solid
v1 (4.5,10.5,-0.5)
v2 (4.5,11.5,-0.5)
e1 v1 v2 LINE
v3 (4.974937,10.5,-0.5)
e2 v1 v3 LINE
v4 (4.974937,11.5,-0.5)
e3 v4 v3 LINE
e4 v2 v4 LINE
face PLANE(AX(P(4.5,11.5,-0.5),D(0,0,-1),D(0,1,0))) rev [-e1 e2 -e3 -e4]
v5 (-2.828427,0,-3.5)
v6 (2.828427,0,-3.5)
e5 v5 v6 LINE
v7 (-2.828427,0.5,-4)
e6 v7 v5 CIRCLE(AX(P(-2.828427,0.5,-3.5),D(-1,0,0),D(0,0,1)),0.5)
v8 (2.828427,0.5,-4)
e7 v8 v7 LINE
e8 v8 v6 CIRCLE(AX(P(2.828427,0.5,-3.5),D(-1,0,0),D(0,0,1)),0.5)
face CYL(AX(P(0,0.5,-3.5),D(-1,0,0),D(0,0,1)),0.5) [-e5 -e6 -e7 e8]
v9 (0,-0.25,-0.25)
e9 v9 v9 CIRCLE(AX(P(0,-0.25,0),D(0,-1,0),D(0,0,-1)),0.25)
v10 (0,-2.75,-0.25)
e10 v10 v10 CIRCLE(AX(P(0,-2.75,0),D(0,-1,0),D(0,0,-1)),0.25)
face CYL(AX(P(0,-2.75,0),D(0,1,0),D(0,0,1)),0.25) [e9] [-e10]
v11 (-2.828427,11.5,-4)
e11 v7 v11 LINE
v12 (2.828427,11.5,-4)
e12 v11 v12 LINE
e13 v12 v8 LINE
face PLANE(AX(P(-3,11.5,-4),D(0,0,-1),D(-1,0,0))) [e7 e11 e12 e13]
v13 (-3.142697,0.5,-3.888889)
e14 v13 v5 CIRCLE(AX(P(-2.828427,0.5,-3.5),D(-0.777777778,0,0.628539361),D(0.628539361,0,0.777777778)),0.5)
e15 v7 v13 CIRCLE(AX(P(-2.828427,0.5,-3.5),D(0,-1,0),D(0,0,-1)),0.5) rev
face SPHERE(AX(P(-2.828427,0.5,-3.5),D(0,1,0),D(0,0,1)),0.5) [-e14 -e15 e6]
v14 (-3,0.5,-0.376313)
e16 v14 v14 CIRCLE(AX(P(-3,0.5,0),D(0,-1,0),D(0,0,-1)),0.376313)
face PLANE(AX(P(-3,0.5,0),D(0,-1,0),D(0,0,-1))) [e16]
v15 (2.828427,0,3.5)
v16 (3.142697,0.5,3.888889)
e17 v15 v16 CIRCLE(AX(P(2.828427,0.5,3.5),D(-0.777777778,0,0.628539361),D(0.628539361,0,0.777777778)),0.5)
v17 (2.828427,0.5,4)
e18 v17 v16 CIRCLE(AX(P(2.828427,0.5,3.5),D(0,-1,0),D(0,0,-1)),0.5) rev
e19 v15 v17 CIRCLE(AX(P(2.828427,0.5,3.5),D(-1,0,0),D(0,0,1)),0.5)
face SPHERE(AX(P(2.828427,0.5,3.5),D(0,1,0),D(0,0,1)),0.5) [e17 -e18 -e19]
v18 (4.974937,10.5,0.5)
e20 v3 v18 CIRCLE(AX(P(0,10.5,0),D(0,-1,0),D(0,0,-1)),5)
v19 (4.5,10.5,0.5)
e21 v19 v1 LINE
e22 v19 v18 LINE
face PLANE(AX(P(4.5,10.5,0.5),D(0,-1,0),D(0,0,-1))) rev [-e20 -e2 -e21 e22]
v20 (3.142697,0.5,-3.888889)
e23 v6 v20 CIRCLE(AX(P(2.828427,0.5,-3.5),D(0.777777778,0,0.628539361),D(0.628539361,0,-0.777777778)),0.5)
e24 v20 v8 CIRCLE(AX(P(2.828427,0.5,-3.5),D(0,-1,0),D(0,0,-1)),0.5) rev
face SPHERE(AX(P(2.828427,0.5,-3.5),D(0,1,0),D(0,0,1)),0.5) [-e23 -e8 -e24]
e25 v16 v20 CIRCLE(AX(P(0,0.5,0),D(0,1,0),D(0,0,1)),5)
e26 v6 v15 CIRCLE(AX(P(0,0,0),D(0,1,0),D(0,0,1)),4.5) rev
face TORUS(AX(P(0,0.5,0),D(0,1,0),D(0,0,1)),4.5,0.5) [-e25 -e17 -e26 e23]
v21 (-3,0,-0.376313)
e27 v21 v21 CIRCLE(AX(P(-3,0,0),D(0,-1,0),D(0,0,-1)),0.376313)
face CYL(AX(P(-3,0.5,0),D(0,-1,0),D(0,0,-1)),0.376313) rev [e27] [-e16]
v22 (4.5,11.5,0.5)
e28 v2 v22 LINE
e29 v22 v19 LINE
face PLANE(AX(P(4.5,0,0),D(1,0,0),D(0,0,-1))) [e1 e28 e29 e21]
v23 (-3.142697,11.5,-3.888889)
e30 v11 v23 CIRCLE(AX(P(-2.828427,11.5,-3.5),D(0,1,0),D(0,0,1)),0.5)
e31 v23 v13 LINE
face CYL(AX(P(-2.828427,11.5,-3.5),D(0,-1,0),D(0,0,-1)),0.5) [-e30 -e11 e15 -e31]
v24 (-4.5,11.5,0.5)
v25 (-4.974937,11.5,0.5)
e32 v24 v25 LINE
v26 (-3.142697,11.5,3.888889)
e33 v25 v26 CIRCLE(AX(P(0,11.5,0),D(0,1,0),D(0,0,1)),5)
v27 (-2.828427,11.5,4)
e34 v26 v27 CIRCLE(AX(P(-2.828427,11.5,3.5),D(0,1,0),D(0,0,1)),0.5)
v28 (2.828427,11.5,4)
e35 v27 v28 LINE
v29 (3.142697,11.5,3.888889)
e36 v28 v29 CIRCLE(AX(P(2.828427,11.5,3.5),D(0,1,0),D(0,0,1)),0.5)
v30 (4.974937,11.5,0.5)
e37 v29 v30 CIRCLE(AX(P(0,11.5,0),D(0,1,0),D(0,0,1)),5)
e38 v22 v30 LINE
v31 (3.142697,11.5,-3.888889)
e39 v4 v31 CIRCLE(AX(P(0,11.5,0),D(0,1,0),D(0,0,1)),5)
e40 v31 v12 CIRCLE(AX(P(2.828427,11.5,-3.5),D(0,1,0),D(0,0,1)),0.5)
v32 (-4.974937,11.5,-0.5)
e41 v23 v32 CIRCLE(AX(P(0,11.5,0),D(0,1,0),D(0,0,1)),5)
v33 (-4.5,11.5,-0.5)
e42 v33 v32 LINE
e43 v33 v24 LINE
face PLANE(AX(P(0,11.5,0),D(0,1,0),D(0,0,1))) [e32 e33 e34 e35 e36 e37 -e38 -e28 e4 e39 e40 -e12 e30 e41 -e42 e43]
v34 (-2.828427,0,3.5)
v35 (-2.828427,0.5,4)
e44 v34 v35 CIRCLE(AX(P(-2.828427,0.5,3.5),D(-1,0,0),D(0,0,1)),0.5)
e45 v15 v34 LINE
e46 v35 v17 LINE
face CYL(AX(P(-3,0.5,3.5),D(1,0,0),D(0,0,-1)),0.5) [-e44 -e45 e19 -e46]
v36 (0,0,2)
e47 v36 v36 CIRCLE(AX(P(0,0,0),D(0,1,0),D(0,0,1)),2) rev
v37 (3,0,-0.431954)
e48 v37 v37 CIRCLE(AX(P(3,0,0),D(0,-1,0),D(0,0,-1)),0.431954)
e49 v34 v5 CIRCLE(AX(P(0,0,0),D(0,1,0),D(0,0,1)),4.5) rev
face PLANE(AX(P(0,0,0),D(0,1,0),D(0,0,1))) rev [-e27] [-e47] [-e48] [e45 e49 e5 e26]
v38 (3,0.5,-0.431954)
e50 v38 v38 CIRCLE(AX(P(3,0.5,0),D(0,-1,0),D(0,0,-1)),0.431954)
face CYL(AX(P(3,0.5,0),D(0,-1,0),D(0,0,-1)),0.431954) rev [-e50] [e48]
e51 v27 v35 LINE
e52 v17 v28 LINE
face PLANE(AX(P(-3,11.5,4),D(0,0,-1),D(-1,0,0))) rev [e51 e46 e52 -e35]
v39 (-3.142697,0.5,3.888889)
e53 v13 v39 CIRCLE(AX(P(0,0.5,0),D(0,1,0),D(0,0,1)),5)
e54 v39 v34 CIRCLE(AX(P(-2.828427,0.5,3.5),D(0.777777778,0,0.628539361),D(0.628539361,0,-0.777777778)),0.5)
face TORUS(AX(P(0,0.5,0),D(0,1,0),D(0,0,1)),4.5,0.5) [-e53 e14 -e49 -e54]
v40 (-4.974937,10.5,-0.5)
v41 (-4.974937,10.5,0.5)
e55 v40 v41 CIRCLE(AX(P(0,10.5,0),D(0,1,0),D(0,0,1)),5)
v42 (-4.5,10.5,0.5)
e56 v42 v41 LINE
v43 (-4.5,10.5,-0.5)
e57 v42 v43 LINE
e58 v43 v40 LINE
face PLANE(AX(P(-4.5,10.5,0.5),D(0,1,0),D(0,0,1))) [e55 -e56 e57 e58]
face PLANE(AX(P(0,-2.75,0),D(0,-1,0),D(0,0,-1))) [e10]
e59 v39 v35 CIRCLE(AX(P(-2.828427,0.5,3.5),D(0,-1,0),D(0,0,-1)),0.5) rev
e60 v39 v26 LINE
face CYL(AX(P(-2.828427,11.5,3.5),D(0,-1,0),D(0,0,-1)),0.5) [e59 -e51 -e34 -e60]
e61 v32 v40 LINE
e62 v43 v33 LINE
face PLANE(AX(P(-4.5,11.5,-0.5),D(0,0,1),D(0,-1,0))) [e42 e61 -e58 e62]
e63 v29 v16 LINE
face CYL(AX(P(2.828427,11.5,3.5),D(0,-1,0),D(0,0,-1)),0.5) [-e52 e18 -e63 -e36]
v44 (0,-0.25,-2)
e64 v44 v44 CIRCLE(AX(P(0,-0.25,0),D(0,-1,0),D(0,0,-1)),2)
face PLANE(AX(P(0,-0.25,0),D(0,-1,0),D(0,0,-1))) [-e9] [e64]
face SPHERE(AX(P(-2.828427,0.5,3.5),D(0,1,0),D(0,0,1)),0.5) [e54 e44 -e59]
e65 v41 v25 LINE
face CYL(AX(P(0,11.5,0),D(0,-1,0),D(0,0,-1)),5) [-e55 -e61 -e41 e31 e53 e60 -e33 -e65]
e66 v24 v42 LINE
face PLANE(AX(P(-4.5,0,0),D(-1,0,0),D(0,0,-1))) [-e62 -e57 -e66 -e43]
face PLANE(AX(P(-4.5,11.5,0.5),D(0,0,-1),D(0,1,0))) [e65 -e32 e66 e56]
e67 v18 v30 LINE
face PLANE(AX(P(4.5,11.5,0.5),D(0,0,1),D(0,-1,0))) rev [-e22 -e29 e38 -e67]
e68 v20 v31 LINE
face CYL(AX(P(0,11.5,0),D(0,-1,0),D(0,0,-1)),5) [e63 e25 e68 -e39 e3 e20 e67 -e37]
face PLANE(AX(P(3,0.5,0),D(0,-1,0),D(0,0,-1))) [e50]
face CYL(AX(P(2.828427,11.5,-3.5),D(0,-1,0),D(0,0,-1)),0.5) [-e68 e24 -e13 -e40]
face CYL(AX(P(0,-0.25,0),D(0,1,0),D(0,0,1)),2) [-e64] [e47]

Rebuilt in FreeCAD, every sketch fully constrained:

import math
import FreeCAD as App
import Part
import Sketcher
from FreeCAD import Vector


def edges_at(feature, points):
    """Names of the edges that pass closest to the given points."""
    edges = feature.Shape.Edges
    near = lambda p: min(range(len(edges)), key=lambda i: edges[i].distToShape(Part.Vertex(*p))[0])
    return sorted({f"Edge{near(p) + 1}" for p in points})


def add_polygon(sketch, points):
    """Adds a closed chain of lines whose ends are joined by coincident constraints."""
    first, n = sketch.GeometryCount, len(points)
    for a, b in zip(points, points[1:] + points[:1]):
        sketch.addGeometry(Part.LineSegment(App.Vector(*a, 0), App.Vector(*b, 0)), False)
    for i in range(n):
        sketch.addConstraint(Sketcher.Constraint("Coincident", first + i, 2, first + (i + 1) % n, 1))

doc = App.newDocument("Part")
body = doc.addObject("PartDesign::Body", "Body")

# Sketch on XZ plane
sketch1 = body.newObject("Sketcher::SketchObject", "Sketch")
sketch1.AttachmentSupport = (doc.getObject("XZ_Plane"), [""])
sketch1.MapMode = "FlatFace"
sketch1.addGeometry([
    Part.LineSegment(Vector(3, -4, 0), Vector(-3, -4, 0)),
    Part.ArcOfCircle(Part.Circle(Vector(0, 0, 0), Vector(0, 0, 1), 5), math.radians(126.869898), math.radians(233.130102)),
    Part.LineSegment(Vector(-3, 4, 0), Vector(3, 4, 0)),
    Part.ArcOfCircle(Part.Circle(Vector(0, 0, 0), Vector(0, 0, 1), 5), math.radians(-53.130102), math.radians(53.130102)),
], False)
sketch1.addConstraint([
    Sketcher.Constraint("Coincident", 0, 2, 1, 2),
    Sketcher.Constraint("Coincident", 1, 1, 2, 1),
    Sketcher.Constraint("Coincident", 2, 2, 3, 2),
    Sketcher.Constraint("Coincident", 3, 1, 0, 1),
    Sketcher.Constraint("Horizontal", 0),
    Sketcher.Constraint("Horizontal", 2),
    Sketcher.Constraint("Coincident", 1, 3, -1, 1),
    Sketcher.Constraint("Coincident", 3, 3, -1, 1),
    Sketcher.Constraint("Equal", 1, 3),
    Sketcher.Constraint("Vertical", 0, 2, 1, 1),
    Sketcher.Constraint("Radius", 1, 5.0),
    Sketcher.Constraint("DistanceX", 0, 2, 0, 1, 6.0),
])
pad1 = body.newObject("PartDesign::Pad", "Pad")
pad1.Profile = sketch1
pad1.Length = 11.5
pad1.Reversed = True

# Sketch on YZ plane
sketch2 = body.newObject("Sketcher::SketchObject", "Sketch001")
sketch2.AttachmentSupport = (doc.getObject("YZ_Plane"), [""])
sketch2.MapMode = "FlatFace"
sketch2.AttachmentOffset = App.Placement(Vector(0, 0, 5), App.Rotation())
add_polygon(sketch2, [(11.5, 0.5), (10.5, 0.5), (10.5, -0.5), (11.5, -0.5)])  # lines 0-3
sketch2.addConstraint([
    Sketcher.Constraint("Horizontal", 0),
    Sketcher.Constraint("Vertical", 1),
    Sketcher.Constraint("Horizontal", 2),
    Sketcher.Constraint("Vertical", 3),
    Sketcher.Constraint("Equal", 2, 1),
    Sketcher.Constraint("DistanceX", 0, 2, 0, 1, 1.0),
    Sketcher.Constraint("DistanceX", -1, 1, 0, 2, 10.5),
    Sketcher.Constraint("DistanceY", -1, 1, 0, 2, 0.5),
])
pocket1 = body.newObject("PartDesign::Pocket", "Pocket")
pocket1.Profile = sketch2
pocket1.Length = 0.5
doc.recompute()

mirrored = body.newObject("PartDesign::Mirrored", "Mirrored")
mirrored.Originals = [pocket1]
mirrored.MirrorPlane = (doc.getObject("YZ_Plane"), [""])
body.Tip = mirrored
doc.recompute()

fillet = body.newObject("PartDesign::Fillet", "Fillet")
fillet.Base = (mirrored, edges_at(mirrored, [
    (-3, 5.75, -4),
    (-3, 5.75, 4),
    (3, 5.75, 4),
    (3, 5.75, -4),
]))
fillet.Radius = 0.5
doc.recompute()

fillet2 = body.newObject("PartDesign::Fillet", "Fillet001")
fillet2.Base = (fillet, edges_at(fillet, [
    (-5, 0, 0),
    (0, 0, -4),
    (5, 0, 0),
    (0, 0, 4),
    (2.995, 0, 3.971),
    (-2.995, 0, 3.971),
    (2.995, 0, -3.971),
    (-2.995, 0, -3.971),
]))
fillet2.Radius = 0.5

# Sketch on XZ plane
sketch3 = body.newObject("Sketcher::SketchObject", "Sketch002")
sketch3.AttachmentSupport = (doc.getObject("XZ_Plane"), [""])
sketch3.MapMode = "FlatFace"
sketch3.addGeometry(Part.Circle(Vector(0, 0, 0), Vector(0, 0, 1), 2), False)
sketch3.addConstraint([
    Sketcher.Constraint("Coincident", 0, 3, -1, 1),
    Sketcher.Constraint("Diameter", 0, 4.0),
])
pad2 = body.newObject("PartDesign::Pad", "Pad001")
pad2.Profile = sketch3
pad2.Length = 0.25

# Sketch on XZ plane
sketch4 = body.newObject("Sketcher::SketchObject", "Sketch003")
sketch4.AttachmentSupport = (doc.getObject("XZ_Plane"), [""])
sketch4.MapMode = "FlatFace"
sketch4.AttachmentOffset = App.Placement(Vector(0, 0, 0.25), App.Rotation())
sketch4.addGeometry(Part.Circle(Vector(0, 0, 0), Vector(0, 0, 1), 0.25), False)
sketch4.addConstraint([
    Sketcher.Constraint("Coincident", 0, 3, -1, 1),
    Sketcher.Constraint("Diameter", 0, 0.5),
])
pad3 = body.newObject("PartDesign::Pad", "Pad002")
pad3.Profile = sketch4
pad3.Length = 2.5

# Sketch on XZ plane
sketch5 = body.newObject("Sketcher::SketchObject", "Sketch004")
sketch5.AttachmentSupport = (doc.getObject("XZ_Plane"), [""])
sketch5.MapMode = "FlatFace"
sketch5.addGeometry([
    Part.Circle(Vector(-3, 0, 0), Vector(0, 0, 1), 0.376313),
    Part.Circle(Vector(3, 0, 0), Vector(0, 0, 1), 0.431954),
], False)
sketch5.addConstraint([
    Sketcher.Constraint("Symmetric", 0, 3, 1, 3, -1, 1),
    Sketcher.Constraint("PointOnObject", 0, 3, -1),
    Sketcher.Constraint("DistanceX", 0, 3, -1, 1, 3.0),
    Sketcher.Constraint("Diameter", 0, 0.752625),
    Sketcher.Constraint("Diameter", 1, 0.863908),
])
pocket2 = body.newObject("PartDesign::Pocket", "Pocket001")
pocket2.Profile = sketch5
pocket2.Length = 0.5

doc.recompute()
